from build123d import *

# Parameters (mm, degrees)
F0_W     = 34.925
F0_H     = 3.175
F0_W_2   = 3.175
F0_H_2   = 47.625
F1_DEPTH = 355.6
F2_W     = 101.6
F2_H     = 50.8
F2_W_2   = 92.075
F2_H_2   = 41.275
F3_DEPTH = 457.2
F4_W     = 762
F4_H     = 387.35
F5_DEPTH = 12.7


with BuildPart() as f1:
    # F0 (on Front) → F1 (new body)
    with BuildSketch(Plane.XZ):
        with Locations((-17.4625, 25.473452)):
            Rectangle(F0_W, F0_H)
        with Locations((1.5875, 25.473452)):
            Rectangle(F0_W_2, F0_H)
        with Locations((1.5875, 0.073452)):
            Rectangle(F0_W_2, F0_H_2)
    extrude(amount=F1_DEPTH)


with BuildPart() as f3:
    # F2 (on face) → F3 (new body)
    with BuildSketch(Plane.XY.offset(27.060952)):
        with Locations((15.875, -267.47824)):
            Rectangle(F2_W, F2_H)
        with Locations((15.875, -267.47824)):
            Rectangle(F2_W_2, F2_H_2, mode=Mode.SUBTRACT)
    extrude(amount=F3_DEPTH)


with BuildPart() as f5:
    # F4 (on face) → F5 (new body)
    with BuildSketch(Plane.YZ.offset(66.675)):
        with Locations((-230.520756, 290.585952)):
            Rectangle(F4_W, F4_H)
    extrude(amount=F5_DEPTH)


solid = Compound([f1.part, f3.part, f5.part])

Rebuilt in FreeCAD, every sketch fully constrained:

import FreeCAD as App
import Part
import Sketcher
from FreeCAD import Vector
Q = App.Units.Quantity

doc = App.newDocument("Part")
body = doc.addObject("PartDesign::Body", "Body")

# Sketch on XZ plane
sketch1 = body.newObject("Sketcher::SketchObject", "Sketch")
sketch1.AttachmentSupport = (doc.getObject("XZ_Plane"), [""])
sketch1.MapMode = "FlatFace"
sketch1.addGeometry(Part.LineSegment(Vector(-34.9, 27.1, 0), Vector(-34.9, 23.9, 0)), False)
sketch1.addGeometry(Part.LineSegment(Vector(-34.9, 23.9, 0), Vector(0, 23.9, 0)), False)
sketch1.addGeometry(Part.LineSegment(Vector(0, 23.9, 0), Vector(0, -23.7, 0)), False)
sketch1.addGeometry(Part.LineSegment(Vector(0, -23.7, 0), Vector(3.2, -23.7, 0)), False)
sketch1.addGeometry(Part.LineSegment(Vector(3.2, -23.7, 0), Vector(3.2, 27.1, 0)), False)
sketch1.addGeometry(Part.LineSegment(Vector(3.2, 27.1, 0), Vector(-34.9, 27.1, 0)), False)
sketch1.addConstraint(Sketcher.Constraint("Coincident", 0, 2, 1, 1))
sketch1.addConstraint(Sketcher.Constraint("Coincident", 1, 2, 2, 1))
sketch1.addConstraint(Sketcher.Constraint("Coincident", 2, 2, 3, 1))
sketch1.addConstraint(Sketcher.Constraint("Coincident", 3, 2, 4, 1))
sketch1.addConstraint(Sketcher.Constraint("Coincident", 4, 2, 5, 1))
sketch1.addConstraint(Sketcher.Constraint("Coincident", 5, 2, 0, 1))
sketch1.addConstraint(Sketcher.Constraint("Vertical", 0))
sketch1.addConstraint(Sketcher.Constraint("Horizontal", 1))
sketch1.addConstraint(Sketcher.Constraint("Vertical", 2))
sketch1.addConstraint(Sketcher.Constraint("Horizontal", 3))
sketch1.addConstraint(Sketcher.Constraint("Vertical", 4))
sketch1.addConstraint(Sketcher.Constraint("Horizontal", 5))
sketch1.addConstraint(Sketcher.Constraint("PointOnObject", 1, 2, -2))
sketch1.addConstraint(Sketcher.Constraint("Equal", 3, 0))
sketch1.addConstraint(Sketcher.Constraint("DistanceY", 4, 1, 4, 2, Q("2 in")))
sketch1.addConstraint(Sketcher.Constraint("DistanceX", 5, 2, 5, 1, Q("1.5 in")))
sketch1.addConstraint(Sketcher.Constraint("DistanceX", 1, 1, 1, 2, Q("1.375 in")))
sketch1.addConstraint(Sketcher.Constraint("DistanceY", -1, 1, 0, 2, 23.885952))
pad1 = body.newObject("PartDesign::Pad", "Pad")
pad1.Profile = sketch1
pad1.Length = Q("14 in")
body2 = doc.addObject("PartDesign::Body", "Body001")

# Sketch on XY plane
sketch2 = body2.newObject("Sketcher::SketchObject", "Sketch001")
sketch2.AttachmentSupport = (doc.getObject("XY_Plane001"), [""])
sketch2.MapMode = "FlatFace"
sketch2.AttachmentOffset = App.Placement(Vector(0, 0, 27.060952), App.Rotation())
sketch2.addGeometry(Part.LineSegment(Vector(-35, -242, 0), Vector(-35, -293, 0)), False)
sketch2.addGeometry(Part.LineSegment(Vector(-35, -293, 0), Vector(67, -293, 0)), False)
sketch2.addGeometry(Part.LineSegment(Vector(67, -293, 0), Vector(67, -242, 0)), False)
sketch2.addGeometry(Part.LineSegment(Vector(67, -242, 0), Vector(-35, -242, 0)), False)
sketch2.addGeometry(Part.LineSegment(Vector(62, -288, 0), Vector(-30, -288, 0)), False)
sketch2.addGeometry(Part.LineSegment(Vector(-30, -288, 0), Vector(-30, -247, 0)), False)
sketch2.addGeometry(Part.LineSegment(Vector(-30, -247, 0), Vector(62, -247, 0)), False)
sketch2.addGeometry(Part.LineSegment(Vector(62, -247, 0), Vector(62, -288, 0)), False)
sketch2.addConstraint(Sketcher.Constraint("Coincident", 0, 2, 1, 1))
sketch2.addConstraint(Sketcher.Constraint("Coincident", 1, 2, 2, 1))
sketch2.addConstraint(Sketcher.Constraint("Coincident", 2, 2, 3, 1))
sketch2.addConstraint(Sketcher.Constraint("Coincident", 3, 2, 0, 1))
sketch2.addConstraint(Sketcher.Constraint("Coincident", 4, 2, 5, 1))
sketch2.addConstraint(Sketcher.Constraint("Coincident", 5, 2, 6, 1))
sketch2.addConstraint(Sketcher.Constraint("Coincident", 6, 2, 7, 1))
sketch2.addConstraint(Sketcher.Constraint("Coincident", 7, 2, 4, 1))
sketch2.addConstraint(Sketcher.Constraint("Vertical", 0))
sketch2.addConstraint(Sketcher.Constraint("Horizontal", 1))
sketch2.addConstraint(Sketcher.Constraint("Vertical", 2))
sketch2.addConstraint(Sketcher.Constraint("Horizontal", 3))
sketch2.addConstraint(Sketcher.Constraint("Horizontal", 4))
sketch2.addConstraint(Sketcher.Constraint("Vertical", 5))
sketch2.addConstraint(Sketcher.Constraint("Horizontal", 6))
sketch2.addConstraint(Sketcher.Constraint("Vertical", 7))
sketch2.addConstraint(Sketcher.Constraint("DistanceX", 1, 1, 1, 2, Q("4 in")))
sketch2.addConstraint(Sketcher.Constraint("DistanceY", 0, 2, 0, 1, Q("2 in")))
sketch2.addConstraint(Sketcher.Constraint("DistanceX", 4, 2, 4, 1, Q("3.625 in")))
sketch2.addConstraint(Sketcher.Constraint("DistanceY", 5, 1, 5, 2, Q("1.625 in")))
sketch2.addConstraint(Sketcher.Constraint("DistanceX", 0, 2, -1, 1, Q("1.375 in")))
sketch2.addConstraint(Sketcher.Constraint("DistanceX", 4, 2, -1, 1, Q("1.1875 in")))
sketch2.addConstraint(Sketcher.Constraint("DistanceY", 0, 2, 4, 2, Q("0.1875 in")))
sketch2.addConstraint(Sketcher.Constraint("DistanceY", 0, 2, -1, 1, 292.87824))
pad2 = body2.newObject("PartDesign::Pad", "Pad001")
pad2.Profile = sketch2
pad2.Length = Q("18 in")
body3 = doc.addObject("PartDesign::Body", "Body002")

# Sketch on YZ plane
sketch3 = body3.newObject("Sketcher::SketchObject", "Sketch002")
sketch3.AttachmentSupport = (doc.getObject("YZ_Plane002"), [""])
sketch3.MapMode = "FlatFace"
sketch3.AttachmentOffset = App.Placement(Vector(0, 0, 2.625 * 25.4), App.Rotation())
sketch3.addGeometry(Part.LineSegment(Vector(-612, 484, 0), Vector(-612, 97, 0)), False)
sketch3.addGeometry(Part.LineSegment(Vector(-612, 97, 0), Vector(150, 97, 0)), False)
sketch3.addGeometry(Part.LineSegment(Vector(150, 97, 0), Vector(150, 484, 0)), False)
sketch3.addGeometry(Part.LineSegment(Vector(150, 484, 0), Vector(-612, 484, 0)), False)
sketch3.addConstraint(Sketcher.Constraint("Coincident", 0, 2, 1, 1))
sketch3.addConstraint(Sketcher.Constraint("Coincident", 1, 2, 2, 1))
sketch3.addConstraint(Sketcher.Constraint("Coincident", 2, 2, 3, 1))
sketch3.addConstraint(Sketcher.Constraint("Coincident", 3, 2, 0, 1))
sketch3.addConstraint(Sketcher.Constraint("Vertical", 0))
sketch3.addConstraint(Sketcher.Constraint("Horizontal", 1))
sketch3.addConstraint(Sketcher.Constraint("Vertical", 2))
sketch3.addConstraint(Sketcher.Constraint("Horizontal", 3))
sketch3.addConstraint(Sketcher.Constraint("DistanceX", 1, 1, 1, 2, Q("30 in")))
sketch3.addConstraint(Sketcher.Constraint("DistanceY", 0, 2, 0, 1, Q("15.25 in")))
sketch3.addConstraint(Sketcher.Constraint("DistanceY", -1, 1, 0, 2, 96.910952))
sketch3.addConstraint(Sketcher.Constraint("DistanceX", 0, 2, -1, 1, 611.520756))
pad3 = body3.newObject("PartDesign::Pad", "Pad002")
pad3.Profile = sketch3
pad3.Length = Q("0.5 in")

doc.recompute()
